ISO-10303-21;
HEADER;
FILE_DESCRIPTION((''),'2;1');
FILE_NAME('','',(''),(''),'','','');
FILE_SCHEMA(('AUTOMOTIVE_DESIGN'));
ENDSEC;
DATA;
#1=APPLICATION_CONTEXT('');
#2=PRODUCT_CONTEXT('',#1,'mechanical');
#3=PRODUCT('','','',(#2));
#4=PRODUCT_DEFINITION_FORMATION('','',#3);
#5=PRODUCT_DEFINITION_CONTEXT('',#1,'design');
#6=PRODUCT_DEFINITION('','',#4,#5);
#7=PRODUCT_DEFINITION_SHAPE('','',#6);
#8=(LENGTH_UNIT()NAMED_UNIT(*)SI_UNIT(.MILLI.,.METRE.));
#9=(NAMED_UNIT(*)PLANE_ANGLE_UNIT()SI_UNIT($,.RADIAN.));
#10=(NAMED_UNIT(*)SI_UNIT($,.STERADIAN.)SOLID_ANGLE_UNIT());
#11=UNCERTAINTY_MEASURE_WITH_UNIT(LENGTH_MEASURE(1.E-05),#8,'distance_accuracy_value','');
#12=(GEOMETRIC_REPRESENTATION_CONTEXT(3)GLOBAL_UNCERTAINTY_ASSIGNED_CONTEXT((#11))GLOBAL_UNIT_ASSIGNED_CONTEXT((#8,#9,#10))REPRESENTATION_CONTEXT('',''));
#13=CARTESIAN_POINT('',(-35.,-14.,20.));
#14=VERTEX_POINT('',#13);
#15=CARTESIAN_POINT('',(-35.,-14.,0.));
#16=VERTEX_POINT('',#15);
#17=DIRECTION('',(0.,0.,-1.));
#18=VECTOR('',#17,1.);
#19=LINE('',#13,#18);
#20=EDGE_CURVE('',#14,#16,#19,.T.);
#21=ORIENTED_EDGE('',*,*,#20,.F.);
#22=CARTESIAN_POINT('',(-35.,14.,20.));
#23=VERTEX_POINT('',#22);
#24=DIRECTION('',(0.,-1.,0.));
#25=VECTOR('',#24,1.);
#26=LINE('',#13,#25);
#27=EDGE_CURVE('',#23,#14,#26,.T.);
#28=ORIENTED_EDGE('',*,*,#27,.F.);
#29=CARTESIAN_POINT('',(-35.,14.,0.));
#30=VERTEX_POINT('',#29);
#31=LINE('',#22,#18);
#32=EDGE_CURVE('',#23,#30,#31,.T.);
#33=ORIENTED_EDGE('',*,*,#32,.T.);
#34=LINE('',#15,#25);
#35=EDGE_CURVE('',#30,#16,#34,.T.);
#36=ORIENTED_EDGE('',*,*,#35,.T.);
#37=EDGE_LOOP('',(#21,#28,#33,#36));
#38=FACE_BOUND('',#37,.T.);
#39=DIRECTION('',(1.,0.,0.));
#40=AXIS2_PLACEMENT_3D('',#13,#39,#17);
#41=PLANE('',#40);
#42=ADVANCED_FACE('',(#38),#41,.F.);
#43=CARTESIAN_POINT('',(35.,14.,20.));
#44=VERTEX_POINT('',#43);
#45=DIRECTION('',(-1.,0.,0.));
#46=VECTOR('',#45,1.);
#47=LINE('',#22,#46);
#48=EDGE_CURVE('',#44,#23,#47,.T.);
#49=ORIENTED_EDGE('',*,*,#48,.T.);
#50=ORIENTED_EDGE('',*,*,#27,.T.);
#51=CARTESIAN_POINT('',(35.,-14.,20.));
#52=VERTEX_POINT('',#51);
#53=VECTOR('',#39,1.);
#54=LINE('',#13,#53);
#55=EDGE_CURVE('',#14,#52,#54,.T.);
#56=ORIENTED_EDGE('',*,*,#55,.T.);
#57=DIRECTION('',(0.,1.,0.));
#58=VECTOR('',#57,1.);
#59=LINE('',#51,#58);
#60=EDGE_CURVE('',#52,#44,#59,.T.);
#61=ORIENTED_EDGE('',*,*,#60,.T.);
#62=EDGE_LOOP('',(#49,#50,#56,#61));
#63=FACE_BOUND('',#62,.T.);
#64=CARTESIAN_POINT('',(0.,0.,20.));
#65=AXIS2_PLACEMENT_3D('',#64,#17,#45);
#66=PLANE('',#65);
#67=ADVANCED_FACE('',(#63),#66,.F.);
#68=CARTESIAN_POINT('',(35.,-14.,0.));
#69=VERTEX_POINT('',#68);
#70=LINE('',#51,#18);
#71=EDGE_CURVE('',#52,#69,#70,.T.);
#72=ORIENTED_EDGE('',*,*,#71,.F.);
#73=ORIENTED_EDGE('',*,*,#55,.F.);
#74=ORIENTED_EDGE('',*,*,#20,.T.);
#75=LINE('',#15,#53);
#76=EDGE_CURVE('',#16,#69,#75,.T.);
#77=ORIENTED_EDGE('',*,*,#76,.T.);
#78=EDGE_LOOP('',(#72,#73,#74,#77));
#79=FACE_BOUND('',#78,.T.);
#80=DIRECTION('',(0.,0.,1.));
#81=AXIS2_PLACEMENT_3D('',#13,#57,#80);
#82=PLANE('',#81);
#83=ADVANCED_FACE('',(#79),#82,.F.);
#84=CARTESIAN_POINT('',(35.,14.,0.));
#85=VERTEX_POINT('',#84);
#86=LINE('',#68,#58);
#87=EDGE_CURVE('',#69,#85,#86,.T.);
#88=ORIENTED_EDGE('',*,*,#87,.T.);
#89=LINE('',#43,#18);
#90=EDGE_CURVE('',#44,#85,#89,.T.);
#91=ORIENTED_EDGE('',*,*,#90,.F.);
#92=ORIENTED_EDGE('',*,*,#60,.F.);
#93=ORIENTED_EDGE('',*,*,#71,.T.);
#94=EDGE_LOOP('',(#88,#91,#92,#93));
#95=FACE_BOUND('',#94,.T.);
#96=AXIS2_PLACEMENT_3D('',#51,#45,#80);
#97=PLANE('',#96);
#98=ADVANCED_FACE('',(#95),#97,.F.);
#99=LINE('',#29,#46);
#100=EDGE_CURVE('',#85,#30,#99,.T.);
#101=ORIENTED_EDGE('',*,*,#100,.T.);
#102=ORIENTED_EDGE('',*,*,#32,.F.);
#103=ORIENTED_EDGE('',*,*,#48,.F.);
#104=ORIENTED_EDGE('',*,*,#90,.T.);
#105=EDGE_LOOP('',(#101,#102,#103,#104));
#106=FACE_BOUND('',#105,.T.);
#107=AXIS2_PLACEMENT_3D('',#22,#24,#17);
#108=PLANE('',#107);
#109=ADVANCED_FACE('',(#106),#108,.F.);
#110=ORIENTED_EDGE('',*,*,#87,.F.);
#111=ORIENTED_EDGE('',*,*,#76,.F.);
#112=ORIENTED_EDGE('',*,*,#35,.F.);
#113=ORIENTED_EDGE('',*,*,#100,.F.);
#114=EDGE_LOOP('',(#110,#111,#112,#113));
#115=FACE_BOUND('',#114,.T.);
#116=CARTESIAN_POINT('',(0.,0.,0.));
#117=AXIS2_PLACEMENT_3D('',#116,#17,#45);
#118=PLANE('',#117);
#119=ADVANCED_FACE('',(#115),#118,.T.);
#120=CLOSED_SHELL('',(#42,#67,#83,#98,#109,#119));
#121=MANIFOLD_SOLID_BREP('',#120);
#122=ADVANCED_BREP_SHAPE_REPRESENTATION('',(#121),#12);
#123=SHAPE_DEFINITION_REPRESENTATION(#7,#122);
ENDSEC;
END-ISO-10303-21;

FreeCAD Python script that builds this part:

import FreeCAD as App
import Part
import Sketcher
Q = App.Units.Quantity

doc = App.newDocument("Part")
body = doc.addObject("PartDesign::Body", "Body")

sketch1 = body.newObject("Sketcher::SketchObject", "Sketch")
sketch1.AttachmentSupport = (doc.getObject("XY_Plane"), [""])
sketch1.MapMode = "FlatFace"
sketch1.addGeometry(Part.LineSegment(App.Vector(-35, 14, 0), App.Vector(-35, -14, 0)), False)
sketch1.addGeometry(Part.LineSegment(App.Vector(-35, -14, 0), App.Vector(35, -14, 0)), False)
sketch1.addGeometry(Part.LineSegment(App.Vector(35, -14, 0), App.Vector(35, 14, 0)), False)
sketch1.addGeometry(Part.LineSegment(App.Vector(35, 14, 0), App.Vector(-35, 14, 0)), False)
sketch1.addConstraint(Sketcher.Constraint("Coincident", 0, 2, 1, 1))
sketch1.addConstraint(Sketcher.Constraint("Coincident", 1, 2, 2, 1))
sketch1.addConstraint(Sketcher.Constraint("Coincident", 2, 2, 3, 1))
sketch1.addConstraint(Sketcher.Constraint("Coincident", 3, 2, 0, 1))
sketch1.addConstraint(Sketcher.Constraint("Vertical", 0))
sketch1.addConstraint(Sketcher.Constraint("Horizontal", 1))
sketch1.addConstraint(Sketcher.Constraint("Vertical", 2))
sketch1.addConstraint(Sketcher.Constraint("Horizontal", 3))
sketch1.addConstraint(Sketcher.Constraint("Symmetric", 0, 2, 2, 2, -1, 1))
sketch1.addConstraint(Sketcher.Constraint("DistanceX", 1, 1, 1, 2, Q("70 mm")))
sketch1.addConstraint(Sketcher.Constraint("DistanceY", 0, 2, 0, 1, Q("28 mm")))
pad1 = body.newObject("PartDesign::Pad", "Pad")
pad1.Profile = sketch1
pad1.Length = 20

doc.recompute()
